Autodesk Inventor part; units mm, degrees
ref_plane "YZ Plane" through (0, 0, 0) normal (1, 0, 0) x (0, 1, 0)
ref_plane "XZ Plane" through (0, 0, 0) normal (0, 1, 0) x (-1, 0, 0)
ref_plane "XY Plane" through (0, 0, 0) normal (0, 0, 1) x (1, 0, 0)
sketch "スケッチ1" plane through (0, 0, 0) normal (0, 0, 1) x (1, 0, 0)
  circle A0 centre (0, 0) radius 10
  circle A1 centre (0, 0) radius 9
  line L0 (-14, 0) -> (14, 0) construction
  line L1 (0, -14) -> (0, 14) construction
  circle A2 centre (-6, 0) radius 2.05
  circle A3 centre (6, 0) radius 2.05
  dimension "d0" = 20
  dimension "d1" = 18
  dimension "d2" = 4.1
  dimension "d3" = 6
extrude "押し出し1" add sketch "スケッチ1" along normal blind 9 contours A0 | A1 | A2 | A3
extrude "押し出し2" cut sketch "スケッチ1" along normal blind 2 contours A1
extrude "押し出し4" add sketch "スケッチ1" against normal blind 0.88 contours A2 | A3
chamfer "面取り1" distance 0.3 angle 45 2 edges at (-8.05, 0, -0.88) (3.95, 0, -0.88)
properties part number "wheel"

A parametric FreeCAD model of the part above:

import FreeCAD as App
import Part
import Sketcher

V = App.Vector
Q = App.Units.Quantity


def edges_at(feature, points):
    """Names of the edges that pass closest to the given points."""
    edges = feature.Shape.Edges
    near = lambda p: min(range(len(edges)), key=lambda i: edges[i].distToShape(Part.Vertex(*p))[0])
    return sorted({f"Edge{near(p) + 1}" for p in points})

doc = App.newDocument("Part")
params = doc.addObject("Spreadsheet::Sheet", "Params")
for row, (alias, value) in enumerate([
    ("sketch1_diameter", "20 mm"),
    ("pad1_length", "9 mm"),
    ("sketch2_diameter", "18 mm"),
    ("sketch2_diameter2", "4.1 mm"),
    ("pocket1_length", "2 mm"),
    ("sketch3_diameter", "4.1 mm"),
    ("pad2_length", "0.88 mm"),
    ("chamfer_size", "0.3 mm"),
], start=1):
    params.set(f"A{row}", alias)
    params.set(f"B{row}", "=" + value)
    params.setAlias(f"B{row}", alias)

body = doc.addObject("PartDesign::Body", "Body")

# Sketch on XY plane
sketch1 = doc.addObject("Sketcher::SketchObject", "Sketch")
body.addObject(sketch1)
sketch1.AttachmentSupport = (doc.XY_Plane, [""])
sketch1.MapMode = "FlatFace"
sketch1.addGeometry(Part.Circle(V(0, 0, 0), V(0, 0, 1), 10), False)
sketch1.addConstraint([
    Sketcher.Constraint("Coincident", 0, 3, -1, 1),
    Sketcher.Constraint("Diameter", 0, Q("20 mm")),
])
sketch1.setExpression("Constraints[1]", "Params.sketch1_diameter")
pad1 = doc.addObject("PartDesign::Pad", "Pad")
body.addObject(pad1)
pad1.Profile = sketch1
pad1.setExpression("Length", "Params.pad1_length")

# Sketch on XY plane
sketch2 = doc.addObject("Sketcher::SketchObject", "Sketch001")
body.addObject(sketch2)
sketch2.AttachmentSupport = (doc.XY_Plane, [""])
sketch2.MapMode = "FlatFace"
sketch2.addGeometry([
    Part.Circle(V(0, 0, 0), V(0, 0, 1), 9),
    Part.Circle(V(-6, 0, 0), V(0, 0, 1), 2),
    Part.Circle(V(6, 0, 0), V(0, 0, 1), 2),
], False)
sketch2.addConstraint([
    Sketcher.Constraint("Coincident", 0, 3, -1, 1),
    Sketcher.Constraint("Equal", 1, 2),
    Sketcher.Constraint("Symmetric", 1, 3, 2, 3, -1, 1),
    Sketcher.Constraint("PointOnObject", 1, 3, -1),
    Sketcher.Constraint("Diameter", 0, Q("18 mm")),
    Sketcher.Constraint("Diameter", 1, Q("4.1 mm")),
    Sketcher.Constraint("DistanceX", 1, 3, -1, 1, Q("6 mm")),
])
sketch2.setExpression("Constraints[4]", "Params.sketch2_diameter")
sketch2.setExpression("Constraints[5]", "Params.sketch2_diameter2")
pocket1 = doc.addObject("PartDesign::Pocket", "Pocket")
body.addObject(pocket1)
pocket1.Profile = sketch2
pocket1.setExpression("Length", "Params.pocket1_length")
pocket1.Reversed = True

# Sketch on XY plane
sketch3 = doc.addObject("Sketcher::SketchObject", "Sketch002")
body.addObject(sketch3)
sketch3.AttachmentSupport = (doc.XY_Plane, [""])
sketch3.MapMode = "FlatFace"
sketch3.addGeometry([
    Part.Circle(V(-6, 0, 0), V(0, 0, 1), 2),
    Part.Circle(V(6, 0, 0), V(0, 0, 1), 2),
], False)
sketch3.addConstraint([
    Sketcher.Constraint("Equal", 0, 1),
    Sketcher.Constraint("Symmetric", 0, 3, 1, 3, -1, 1),
    Sketcher.Constraint("PointOnObject", 0, 3, -1),
    Sketcher.Constraint("Diameter", 0, Q("4.1 mm")),
    Sketcher.Constraint("DistanceX", 0, 3, -1, 1, Q("6 mm")),
])
sketch3.setExpression("Constraints[3]", "Params.sketch3_diameter")
pad2 = doc.addObject("PartDesign::Pad", "Pad001")
body.addObject(pad2)
pad2.Profile = sketch3
pad2.setExpression("Length", "Params.pad2_length")
pad2.Reversed = True
doc.recompute()

chamfer = doc.addObject("PartDesign::Chamfer", "Chamfer")
body.addObject(chamfer)
chamfer.Base = (pad2, edges_at(pad2, [(-8.05, 0, -0.88), (3.95, 0, -0.88)]))
chamfer.setExpression("Size", "Params.chamfer_size")

doc.recompute()
